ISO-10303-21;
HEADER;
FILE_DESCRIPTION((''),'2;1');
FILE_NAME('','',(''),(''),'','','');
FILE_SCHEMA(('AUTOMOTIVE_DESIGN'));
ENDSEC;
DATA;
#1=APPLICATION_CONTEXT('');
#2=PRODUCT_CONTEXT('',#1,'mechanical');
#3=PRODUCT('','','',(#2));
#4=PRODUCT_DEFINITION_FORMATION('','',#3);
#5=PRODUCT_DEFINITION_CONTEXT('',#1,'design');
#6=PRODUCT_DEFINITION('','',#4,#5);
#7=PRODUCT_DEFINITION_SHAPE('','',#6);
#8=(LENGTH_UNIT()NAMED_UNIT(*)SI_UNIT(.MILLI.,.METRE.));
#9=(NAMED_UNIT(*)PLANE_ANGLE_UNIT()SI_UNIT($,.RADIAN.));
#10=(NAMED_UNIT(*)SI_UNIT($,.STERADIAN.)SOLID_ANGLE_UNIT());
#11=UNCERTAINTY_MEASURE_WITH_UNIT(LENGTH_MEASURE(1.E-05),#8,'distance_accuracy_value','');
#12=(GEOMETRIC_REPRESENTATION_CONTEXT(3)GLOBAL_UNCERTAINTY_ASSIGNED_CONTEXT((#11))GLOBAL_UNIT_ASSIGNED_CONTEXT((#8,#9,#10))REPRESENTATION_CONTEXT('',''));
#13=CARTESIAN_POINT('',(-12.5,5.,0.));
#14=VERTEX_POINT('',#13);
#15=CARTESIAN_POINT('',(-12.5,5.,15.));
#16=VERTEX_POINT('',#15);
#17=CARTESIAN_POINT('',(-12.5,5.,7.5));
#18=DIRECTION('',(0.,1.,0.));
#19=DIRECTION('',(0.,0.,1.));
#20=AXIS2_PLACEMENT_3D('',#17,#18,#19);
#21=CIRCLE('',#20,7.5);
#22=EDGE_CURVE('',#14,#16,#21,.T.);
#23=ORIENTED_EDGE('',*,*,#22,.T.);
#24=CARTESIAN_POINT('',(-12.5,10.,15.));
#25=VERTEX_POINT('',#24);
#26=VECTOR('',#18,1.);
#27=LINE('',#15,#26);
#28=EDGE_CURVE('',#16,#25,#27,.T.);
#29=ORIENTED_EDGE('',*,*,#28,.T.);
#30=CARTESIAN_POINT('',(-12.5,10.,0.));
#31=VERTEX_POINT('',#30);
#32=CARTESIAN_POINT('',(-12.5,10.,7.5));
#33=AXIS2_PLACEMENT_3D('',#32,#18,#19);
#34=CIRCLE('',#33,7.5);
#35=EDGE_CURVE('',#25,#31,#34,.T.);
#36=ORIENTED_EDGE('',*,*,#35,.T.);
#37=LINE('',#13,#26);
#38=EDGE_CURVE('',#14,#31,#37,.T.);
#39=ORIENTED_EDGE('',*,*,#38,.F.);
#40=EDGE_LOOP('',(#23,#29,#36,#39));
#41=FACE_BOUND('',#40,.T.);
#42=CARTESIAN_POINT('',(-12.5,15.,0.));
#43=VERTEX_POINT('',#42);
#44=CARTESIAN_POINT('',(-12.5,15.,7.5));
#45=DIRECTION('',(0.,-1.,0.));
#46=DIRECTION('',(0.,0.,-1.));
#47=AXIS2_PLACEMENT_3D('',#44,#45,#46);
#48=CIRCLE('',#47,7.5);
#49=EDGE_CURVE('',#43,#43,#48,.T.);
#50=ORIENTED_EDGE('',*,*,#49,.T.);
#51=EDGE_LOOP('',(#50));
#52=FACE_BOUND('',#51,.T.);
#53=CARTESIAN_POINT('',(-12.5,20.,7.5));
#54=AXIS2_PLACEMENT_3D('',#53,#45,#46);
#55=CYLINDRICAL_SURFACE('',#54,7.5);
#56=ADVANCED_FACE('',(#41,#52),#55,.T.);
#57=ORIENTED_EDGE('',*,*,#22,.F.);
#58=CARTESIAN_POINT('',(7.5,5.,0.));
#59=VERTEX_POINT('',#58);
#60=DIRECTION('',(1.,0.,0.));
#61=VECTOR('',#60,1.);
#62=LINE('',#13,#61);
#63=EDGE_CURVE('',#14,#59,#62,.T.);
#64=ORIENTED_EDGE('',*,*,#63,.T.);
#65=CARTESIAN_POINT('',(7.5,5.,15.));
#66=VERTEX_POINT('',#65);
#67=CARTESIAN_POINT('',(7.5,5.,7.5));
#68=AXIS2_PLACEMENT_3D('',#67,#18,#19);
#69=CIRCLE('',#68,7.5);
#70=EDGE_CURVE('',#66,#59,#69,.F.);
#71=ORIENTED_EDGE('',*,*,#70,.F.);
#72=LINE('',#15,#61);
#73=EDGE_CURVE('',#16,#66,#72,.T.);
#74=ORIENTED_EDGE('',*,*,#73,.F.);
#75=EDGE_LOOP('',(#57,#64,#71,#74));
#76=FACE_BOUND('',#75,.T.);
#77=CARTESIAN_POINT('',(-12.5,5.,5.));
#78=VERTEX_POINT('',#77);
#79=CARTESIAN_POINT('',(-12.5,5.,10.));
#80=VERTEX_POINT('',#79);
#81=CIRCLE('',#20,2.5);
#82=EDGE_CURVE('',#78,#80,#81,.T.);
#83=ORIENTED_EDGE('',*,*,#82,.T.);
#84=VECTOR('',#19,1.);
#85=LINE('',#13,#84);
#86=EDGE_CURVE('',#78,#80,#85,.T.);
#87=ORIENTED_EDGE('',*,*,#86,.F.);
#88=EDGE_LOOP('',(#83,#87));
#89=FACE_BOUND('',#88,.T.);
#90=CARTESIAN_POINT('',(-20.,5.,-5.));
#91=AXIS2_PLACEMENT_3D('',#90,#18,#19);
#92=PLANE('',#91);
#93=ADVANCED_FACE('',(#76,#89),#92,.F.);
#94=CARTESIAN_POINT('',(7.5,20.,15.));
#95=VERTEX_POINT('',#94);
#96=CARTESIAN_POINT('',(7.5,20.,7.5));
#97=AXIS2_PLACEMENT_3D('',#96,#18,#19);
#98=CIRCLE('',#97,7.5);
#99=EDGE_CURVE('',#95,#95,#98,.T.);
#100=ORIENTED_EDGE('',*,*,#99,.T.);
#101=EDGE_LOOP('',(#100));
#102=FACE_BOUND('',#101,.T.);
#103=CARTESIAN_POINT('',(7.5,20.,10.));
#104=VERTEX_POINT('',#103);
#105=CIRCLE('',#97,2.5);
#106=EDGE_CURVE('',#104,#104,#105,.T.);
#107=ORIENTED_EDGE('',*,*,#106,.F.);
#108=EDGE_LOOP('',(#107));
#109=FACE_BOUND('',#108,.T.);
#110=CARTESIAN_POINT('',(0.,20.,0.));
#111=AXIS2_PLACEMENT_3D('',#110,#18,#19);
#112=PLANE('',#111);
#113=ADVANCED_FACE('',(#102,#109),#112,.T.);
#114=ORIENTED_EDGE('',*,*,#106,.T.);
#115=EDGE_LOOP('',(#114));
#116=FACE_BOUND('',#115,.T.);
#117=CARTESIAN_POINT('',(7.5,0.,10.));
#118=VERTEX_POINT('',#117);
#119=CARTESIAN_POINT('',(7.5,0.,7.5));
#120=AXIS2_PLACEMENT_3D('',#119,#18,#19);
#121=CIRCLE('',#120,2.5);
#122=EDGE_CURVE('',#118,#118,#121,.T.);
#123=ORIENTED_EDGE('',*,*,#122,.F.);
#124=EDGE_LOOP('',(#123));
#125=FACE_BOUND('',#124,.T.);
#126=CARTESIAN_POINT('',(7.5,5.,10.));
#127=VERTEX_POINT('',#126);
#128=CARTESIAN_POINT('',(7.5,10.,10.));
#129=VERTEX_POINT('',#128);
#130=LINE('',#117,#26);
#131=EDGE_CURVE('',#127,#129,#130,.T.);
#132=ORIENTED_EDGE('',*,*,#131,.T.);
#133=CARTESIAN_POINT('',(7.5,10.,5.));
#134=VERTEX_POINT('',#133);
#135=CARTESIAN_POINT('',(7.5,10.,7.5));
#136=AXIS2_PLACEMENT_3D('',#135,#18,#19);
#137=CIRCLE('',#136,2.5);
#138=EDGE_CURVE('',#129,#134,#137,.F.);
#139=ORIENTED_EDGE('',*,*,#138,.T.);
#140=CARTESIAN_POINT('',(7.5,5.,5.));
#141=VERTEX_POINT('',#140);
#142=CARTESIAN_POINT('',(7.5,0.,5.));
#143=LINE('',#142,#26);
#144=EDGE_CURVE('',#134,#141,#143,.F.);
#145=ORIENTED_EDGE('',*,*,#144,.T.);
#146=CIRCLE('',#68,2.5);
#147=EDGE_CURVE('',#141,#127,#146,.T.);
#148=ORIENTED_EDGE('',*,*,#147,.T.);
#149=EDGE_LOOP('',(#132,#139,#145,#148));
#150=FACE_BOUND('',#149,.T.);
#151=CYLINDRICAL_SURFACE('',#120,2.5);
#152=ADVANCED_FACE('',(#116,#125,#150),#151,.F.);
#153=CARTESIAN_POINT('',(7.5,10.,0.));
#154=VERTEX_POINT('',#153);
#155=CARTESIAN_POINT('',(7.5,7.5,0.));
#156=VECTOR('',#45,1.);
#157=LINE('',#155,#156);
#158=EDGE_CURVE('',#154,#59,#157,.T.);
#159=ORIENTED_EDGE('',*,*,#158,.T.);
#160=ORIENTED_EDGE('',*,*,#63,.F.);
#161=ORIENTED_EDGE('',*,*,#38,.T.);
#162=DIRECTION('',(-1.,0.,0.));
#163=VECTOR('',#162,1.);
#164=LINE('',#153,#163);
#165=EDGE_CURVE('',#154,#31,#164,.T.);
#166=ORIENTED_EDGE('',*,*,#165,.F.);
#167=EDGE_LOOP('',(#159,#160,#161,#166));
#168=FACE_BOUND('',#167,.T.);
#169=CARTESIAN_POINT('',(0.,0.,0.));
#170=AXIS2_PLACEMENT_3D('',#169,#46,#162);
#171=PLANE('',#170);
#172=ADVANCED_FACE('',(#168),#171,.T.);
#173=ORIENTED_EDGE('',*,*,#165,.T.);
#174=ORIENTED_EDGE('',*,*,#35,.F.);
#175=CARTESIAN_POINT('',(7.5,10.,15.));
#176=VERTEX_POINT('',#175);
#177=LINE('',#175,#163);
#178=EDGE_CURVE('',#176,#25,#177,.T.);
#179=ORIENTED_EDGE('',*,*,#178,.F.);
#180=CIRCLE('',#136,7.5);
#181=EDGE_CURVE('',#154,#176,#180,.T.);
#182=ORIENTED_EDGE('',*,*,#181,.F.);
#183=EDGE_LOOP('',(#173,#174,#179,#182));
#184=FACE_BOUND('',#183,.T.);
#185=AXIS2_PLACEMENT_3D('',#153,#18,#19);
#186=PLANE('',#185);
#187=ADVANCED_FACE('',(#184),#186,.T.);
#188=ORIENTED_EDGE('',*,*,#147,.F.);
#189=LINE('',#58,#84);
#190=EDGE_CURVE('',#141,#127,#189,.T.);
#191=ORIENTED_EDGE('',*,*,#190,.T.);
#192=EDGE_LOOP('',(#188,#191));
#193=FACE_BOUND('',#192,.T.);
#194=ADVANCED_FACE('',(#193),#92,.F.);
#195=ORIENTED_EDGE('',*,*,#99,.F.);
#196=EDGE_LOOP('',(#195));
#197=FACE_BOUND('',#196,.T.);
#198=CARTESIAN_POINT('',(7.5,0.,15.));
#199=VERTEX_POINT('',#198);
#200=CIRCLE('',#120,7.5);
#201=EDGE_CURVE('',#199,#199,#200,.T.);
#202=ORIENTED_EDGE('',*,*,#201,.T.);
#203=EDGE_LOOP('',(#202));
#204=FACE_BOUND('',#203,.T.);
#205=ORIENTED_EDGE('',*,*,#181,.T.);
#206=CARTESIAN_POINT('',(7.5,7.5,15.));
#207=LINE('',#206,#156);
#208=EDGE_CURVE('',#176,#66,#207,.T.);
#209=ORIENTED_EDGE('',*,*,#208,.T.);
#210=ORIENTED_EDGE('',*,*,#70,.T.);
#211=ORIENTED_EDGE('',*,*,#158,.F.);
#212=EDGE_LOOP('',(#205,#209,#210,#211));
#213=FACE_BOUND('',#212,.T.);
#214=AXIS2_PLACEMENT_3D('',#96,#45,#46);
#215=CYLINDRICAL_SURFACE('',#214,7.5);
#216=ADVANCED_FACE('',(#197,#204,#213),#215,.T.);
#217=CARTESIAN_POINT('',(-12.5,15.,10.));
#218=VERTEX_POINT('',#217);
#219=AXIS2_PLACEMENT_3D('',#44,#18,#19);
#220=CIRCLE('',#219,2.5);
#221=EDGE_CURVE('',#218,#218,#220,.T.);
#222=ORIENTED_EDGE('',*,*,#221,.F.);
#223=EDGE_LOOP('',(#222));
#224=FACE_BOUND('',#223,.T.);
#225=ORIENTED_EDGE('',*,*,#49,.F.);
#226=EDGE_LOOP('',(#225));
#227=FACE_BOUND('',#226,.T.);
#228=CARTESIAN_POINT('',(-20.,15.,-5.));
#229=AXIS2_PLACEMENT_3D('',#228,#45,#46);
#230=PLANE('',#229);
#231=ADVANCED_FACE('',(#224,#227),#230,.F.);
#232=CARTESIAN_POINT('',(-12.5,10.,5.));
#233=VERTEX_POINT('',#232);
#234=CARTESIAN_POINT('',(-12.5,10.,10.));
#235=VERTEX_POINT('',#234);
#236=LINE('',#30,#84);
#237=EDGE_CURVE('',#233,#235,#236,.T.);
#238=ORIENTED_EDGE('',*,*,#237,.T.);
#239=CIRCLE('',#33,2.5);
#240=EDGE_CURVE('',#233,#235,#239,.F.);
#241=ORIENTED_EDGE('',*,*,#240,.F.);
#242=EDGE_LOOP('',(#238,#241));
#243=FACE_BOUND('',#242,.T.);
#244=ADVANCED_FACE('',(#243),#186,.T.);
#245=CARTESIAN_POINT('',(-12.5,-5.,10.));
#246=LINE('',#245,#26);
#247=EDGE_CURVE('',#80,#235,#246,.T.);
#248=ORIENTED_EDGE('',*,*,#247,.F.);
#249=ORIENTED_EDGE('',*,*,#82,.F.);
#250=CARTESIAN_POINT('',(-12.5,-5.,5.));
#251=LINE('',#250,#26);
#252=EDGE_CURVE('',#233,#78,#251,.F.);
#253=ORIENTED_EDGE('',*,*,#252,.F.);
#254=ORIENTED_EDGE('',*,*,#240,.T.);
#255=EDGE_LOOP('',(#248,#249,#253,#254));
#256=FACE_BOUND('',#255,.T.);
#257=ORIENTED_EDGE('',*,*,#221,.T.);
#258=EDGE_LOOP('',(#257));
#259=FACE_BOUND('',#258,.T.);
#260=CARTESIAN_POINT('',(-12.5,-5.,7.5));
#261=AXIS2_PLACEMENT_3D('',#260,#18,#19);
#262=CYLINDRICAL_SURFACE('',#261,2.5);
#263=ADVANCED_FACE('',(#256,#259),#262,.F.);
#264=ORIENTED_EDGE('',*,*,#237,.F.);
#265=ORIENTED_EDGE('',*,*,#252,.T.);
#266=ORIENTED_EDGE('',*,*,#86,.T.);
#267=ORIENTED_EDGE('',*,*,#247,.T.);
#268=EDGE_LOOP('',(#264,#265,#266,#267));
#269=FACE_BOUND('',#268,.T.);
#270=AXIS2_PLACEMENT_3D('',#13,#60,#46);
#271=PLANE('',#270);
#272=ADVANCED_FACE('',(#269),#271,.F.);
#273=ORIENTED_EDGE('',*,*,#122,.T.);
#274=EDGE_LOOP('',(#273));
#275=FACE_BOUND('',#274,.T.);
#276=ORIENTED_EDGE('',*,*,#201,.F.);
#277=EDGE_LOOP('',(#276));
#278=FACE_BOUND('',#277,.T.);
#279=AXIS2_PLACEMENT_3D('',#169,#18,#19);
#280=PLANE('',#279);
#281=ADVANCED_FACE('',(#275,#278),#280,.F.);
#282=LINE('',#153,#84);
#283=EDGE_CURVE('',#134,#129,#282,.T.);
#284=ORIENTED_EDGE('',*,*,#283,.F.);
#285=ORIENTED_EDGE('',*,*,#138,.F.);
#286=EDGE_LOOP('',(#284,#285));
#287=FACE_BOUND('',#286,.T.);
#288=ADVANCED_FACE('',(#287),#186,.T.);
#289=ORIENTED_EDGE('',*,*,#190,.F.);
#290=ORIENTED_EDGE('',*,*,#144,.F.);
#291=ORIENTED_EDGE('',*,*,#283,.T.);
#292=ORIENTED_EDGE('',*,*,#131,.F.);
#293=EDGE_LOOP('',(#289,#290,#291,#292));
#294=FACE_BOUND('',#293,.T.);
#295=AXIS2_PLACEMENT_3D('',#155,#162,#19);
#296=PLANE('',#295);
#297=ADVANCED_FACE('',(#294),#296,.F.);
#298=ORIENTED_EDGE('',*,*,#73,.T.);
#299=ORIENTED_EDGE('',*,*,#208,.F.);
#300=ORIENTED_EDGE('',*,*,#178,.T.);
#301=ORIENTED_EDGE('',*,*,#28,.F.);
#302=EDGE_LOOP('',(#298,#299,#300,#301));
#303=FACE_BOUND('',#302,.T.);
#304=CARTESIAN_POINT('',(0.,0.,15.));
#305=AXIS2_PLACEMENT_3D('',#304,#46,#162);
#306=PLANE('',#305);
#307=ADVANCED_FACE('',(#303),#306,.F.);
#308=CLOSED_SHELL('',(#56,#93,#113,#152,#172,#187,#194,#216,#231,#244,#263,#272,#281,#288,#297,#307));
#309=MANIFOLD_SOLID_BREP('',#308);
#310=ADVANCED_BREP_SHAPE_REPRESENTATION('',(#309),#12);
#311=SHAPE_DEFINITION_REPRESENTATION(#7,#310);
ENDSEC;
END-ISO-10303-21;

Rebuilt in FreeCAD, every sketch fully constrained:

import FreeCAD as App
import Part
import Sketcher
from FreeCAD import Vector

doc = App.newDocument("Part")
body = doc.addObject("PartDesign::Body", "Body")

# Sketch on XZ plane
sketch1 = body.newObject("Sketcher::SketchObject", "Sketch")
sketch1.AttachmentSupport = (doc.getObject("XZ_Plane"), [""])
sketch1.MapMode = "FlatFace"
sketch1.addGeometry(Part.Circle(Vector(7.5, 7.5, 0), Vector(0, 0, 1), 7.5), False)
sketch1.addConstraint([
    Sketcher.Constraint("Diameter", 0, 15.0),
    Sketcher.Constraint("DistanceX", -1, 1, 0, 3, 7.5),
    Sketcher.Constraint("DistanceY", -1, 1, 0, 3, 7.5),
])
pad1 = body.newObject("PartDesign::Pad", "Pad")
pad1.Profile = sketch1
pad1.Length = 20
pad1.Reversed = True

# Sketch on XZ plane
sketch2 = body.newObject("Sketcher::SketchObject", "Sketch001")
sketch2.AttachmentSupport = (doc.getObject("XZ_Plane"), [""])
sketch2.MapMode = "FlatFace"
sketch2.AttachmentOffset = App.Placement(Vector(0, 0, -20), App.Rotation())
sketch2.addGeometry(Part.Circle(Vector(7.5, 7.5, 0), Vector(0, 0, 1), 2.5), False)
sketch2.addConstraint([
    Sketcher.Constraint("Diameter", 0, 5.0),
    Sketcher.Constraint("DistanceX", -1, 1, 0, 3, 7.5),
    Sketcher.Constraint("DistanceY", -1, 1, 0, 3, 7.5),
])
pocket1 = body.newObject("PartDesign::Pocket", "Pocket")
pocket1.Profile = sketch2
pocket1.Length = 20
pocket1.Reversed = True
body2 = doc.addObject("PartDesign::Body", "Body001")

# Sketch on XZ plane
sketch3 = body2.newObject("Sketcher::SketchObject", "Sketch002")
sketch3.AttachmentSupport = (doc.getObject("XZ_Plane001"), [""])
sketch3.MapMode = "FlatFace"
sketch3.addGeometry(Part.Circle(Vector(-12.5, 7.5, 0), Vector(0, 0, 1), 7.5), False)
sketch3.addConstraint([
    Sketcher.Constraint("Diameter", 0, 15.0),
    Sketcher.Constraint("DistanceX", 0, 3, -1, 1, 12.5),
    Sketcher.Constraint("DistanceY", -1, 1, 0, 3, 7.5),
])
pad2 = body2.newObject("PartDesign::Pad", "Pad001")
pad2.Profile = sketch3
pad2.Length = 20
pad2.Reversed = True

# Sketch on XY plane
sketch4 = body2.newObject("Sketcher::SketchObject", "Sketch003")
sketch4.AttachmentSupport = (doc.getObject("XY_Plane001"), [""])
sketch4.MapMode = "FlatFace"
sketch4.AttachmentOffset = App.Placement(Vector(0, 0, 15), App.Rotation())
sketch4.addGeometry([
    Part.LineSegment(Vector(-20, 5, 0), Vector(-20, 0, 0)),
    Part.LineSegment(Vector(-20, 0, 0), Vector(-5, 0, 0)),
    Part.LineSegment(Vector(-5, 0, 0), Vector(-5, 5, 0)),
    Part.LineSegment(Vector(-5, 5, 0), Vector(-20, 5, 0)),
], False)
sketch4.addConstraint([
    Sketcher.Constraint("Coincident", 0, 2, 1, 1),
    Sketcher.Constraint("Coincident", 1, 2, 2, 1),
    Sketcher.Constraint("Coincident", 2, 2, 3, 1),
    Sketcher.Constraint("Coincident", 3, 2, 0, 1),
    Sketcher.Constraint("Vertical", 0),
    Sketcher.Constraint("Horizontal", 1),
    Sketcher.Constraint("Vertical", 2),
    Sketcher.Constraint("Horizontal", 3),
    Sketcher.Constraint("PointOnObject", 0, 2, -1),
    Sketcher.Constraint("DistanceX", 1, 1, 1, 2, 15.0),
    Sketcher.Constraint("DistanceY", 0, 2, 0, 1, 5.0),
    Sketcher.Constraint("DistanceX", 0, 2, -1, 1, 20.0),
])
pocket2 = body2.newObject("PartDesign::Pocket", "Pocket001")
pocket2.Profile = sketch4
pocket2.Length = 20

# Sketch on XY plane
sketch5 = body2.newObject("Sketcher::SketchObject", "Sketch004")
sketch5.AttachmentSupport = (doc.getObject("XY_Plane001"), [""])
sketch5.MapMode = "FlatFace"
sketch5.AttachmentOffset = App.Placement(Vector(0, 0, 15), App.Rotation())
sketch5.addGeometry([
    Part.LineSegment(Vector(-20, 20, 0), Vector(-20, 15, 0)),
    Part.LineSegment(Vector(-20, 15, 0), Vector(-5, 15, 0)),
    Part.LineSegment(Vector(-5, 15, 0), Vector(-5, 20, 0)),
    Part.LineSegment(Vector(-5, 20, 0), Vector(-20, 20, 0)),
], False)
sketch5.addConstraint([
    Sketcher.Constraint("Coincident", 0, 2, 1, 1),
    Sketcher.Constraint("Coincident", 1, 2, 2, 1),
    Sketcher.Constraint("Coincident", 2, 2, 3, 1),
    Sketcher.Constraint("Coincident", 3, 2, 0, 1),
    Sketcher.Constraint("Vertical", 0),
    Sketcher.Constraint("Horizontal", 1),
    Sketcher.Constraint("Vertical", 2),
    Sketcher.Constraint("Horizontal", 3),
    Sketcher.Constraint("DistanceX", 1, 1, 1, 2, 15.0),
    Sketcher.Constraint("DistanceY", 0, 2, 0, 1, 5.0),
    Sketcher.Constraint("DistanceX", 0, 2, -1, 1, 20.0),
    Sketcher.Constraint("DistanceY", -1, 1, 0, 2, 15.0),
])
pocket3 = body2.newObject("PartDesign::Pocket", "Pocket002")
pocket3.Profile = sketch5
pocket3.Length = 20

# Sketch on XZ plane
sketch6 = body2.newObject("Sketcher::SketchObject", "Sketch005")
sketch6.AttachmentSupport = (doc.getObject("XZ_Plane001"), [""])
sketch6.MapMode = "FlatFace"
sketch6.AttachmentOffset = App.Placement(Vector(0, 0, -15), App.Rotation())
sketch6.addGeometry(Part.Circle(Vector(-12.5, 7.5, 0), Vector(0, 0, 1), 2.5), False)
sketch6.addConstraint([
    Sketcher.Constraint("Diameter", 0, 5.0),
    Sketcher.Constraint("DistanceX", 0, 3, -1, 1, 12.5),
    Sketcher.Constraint("DistanceY", -1, 1, 0, 3, 7.5),
])
pocket4 = body2.newObject("PartDesign::Pocket", "Pocket003")
pocket4.Profile = sketch6
pocket4.Length = 20
pocket4.Reversed = True
body.AllowCompound = True
doc.recompute()

boolean = body.newObject("PartDesign::Boolean", "Boolean")
boolean.Type = "Fuse"
boolean.addObjects([body2])

# Sketch on XY plane
sketch7 = body.newObject("Sketcher::SketchObject", "Sketch006")
sketch7.AttachmentSupport = (doc.getObject("XY_Plane"), [""])
sketch7.MapMode = "FlatFace"
sketch7.AttachmentOffset = App.Placement(Vector(0, 0, 15), App.Rotation())
sketch7.addGeometry([
    Part.LineSegment(Vector(-12.5, 5, 0), Vector(7.5, 5, 0)),
    Part.LineSegment(Vector(7.5, 5, 0), Vector(7.5, 10, 0)),
    Part.LineSegment(Vector(7.5, 10, 0), Vector(-12.5, 10, 0)),
    Part.LineSegment(Vector(-12.5, 10, 0), Vector(-12.5, 5, 0)),
], False)
sketch7.addConstraint([
    Sketcher.Constraint("Coincident", 0, 2, 1, 1),
    Sketcher.Constraint("Coincident", 1, 2, 2, 1),
    Sketcher.Constraint("Coincident", 2, 2, 3, 1),
    Sketcher.Constraint("Coincident", 3, 2, 0, 1),
    Sketcher.Constraint("Horizontal", 0),
    Sketcher.Constraint("Vertical", 1),
    Sketcher.Constraint("Horizontal", 2),
    Sketcher.Constraint("Vertical", 3),
    Sketcher.Constraint("DistanceX", 0, 1, 0, 2, 20.0),
    Sketcher.Constraint("DistanceY", 1, 1, 1, 2, 5.0),
    Sketcher.Constraint("DistanceY", -1, 1, 0, 2, 5.0),
    Sketcher.Constraint("DistanceX", -1, 1, 0, 2, 7.5),
])
pad3 = body.newObject("PartDesign::Pad", "Pad002")
pad3.Profile = sketch7
pad3.Length = 15
pad3.Reversed = True

doc.recompute()
